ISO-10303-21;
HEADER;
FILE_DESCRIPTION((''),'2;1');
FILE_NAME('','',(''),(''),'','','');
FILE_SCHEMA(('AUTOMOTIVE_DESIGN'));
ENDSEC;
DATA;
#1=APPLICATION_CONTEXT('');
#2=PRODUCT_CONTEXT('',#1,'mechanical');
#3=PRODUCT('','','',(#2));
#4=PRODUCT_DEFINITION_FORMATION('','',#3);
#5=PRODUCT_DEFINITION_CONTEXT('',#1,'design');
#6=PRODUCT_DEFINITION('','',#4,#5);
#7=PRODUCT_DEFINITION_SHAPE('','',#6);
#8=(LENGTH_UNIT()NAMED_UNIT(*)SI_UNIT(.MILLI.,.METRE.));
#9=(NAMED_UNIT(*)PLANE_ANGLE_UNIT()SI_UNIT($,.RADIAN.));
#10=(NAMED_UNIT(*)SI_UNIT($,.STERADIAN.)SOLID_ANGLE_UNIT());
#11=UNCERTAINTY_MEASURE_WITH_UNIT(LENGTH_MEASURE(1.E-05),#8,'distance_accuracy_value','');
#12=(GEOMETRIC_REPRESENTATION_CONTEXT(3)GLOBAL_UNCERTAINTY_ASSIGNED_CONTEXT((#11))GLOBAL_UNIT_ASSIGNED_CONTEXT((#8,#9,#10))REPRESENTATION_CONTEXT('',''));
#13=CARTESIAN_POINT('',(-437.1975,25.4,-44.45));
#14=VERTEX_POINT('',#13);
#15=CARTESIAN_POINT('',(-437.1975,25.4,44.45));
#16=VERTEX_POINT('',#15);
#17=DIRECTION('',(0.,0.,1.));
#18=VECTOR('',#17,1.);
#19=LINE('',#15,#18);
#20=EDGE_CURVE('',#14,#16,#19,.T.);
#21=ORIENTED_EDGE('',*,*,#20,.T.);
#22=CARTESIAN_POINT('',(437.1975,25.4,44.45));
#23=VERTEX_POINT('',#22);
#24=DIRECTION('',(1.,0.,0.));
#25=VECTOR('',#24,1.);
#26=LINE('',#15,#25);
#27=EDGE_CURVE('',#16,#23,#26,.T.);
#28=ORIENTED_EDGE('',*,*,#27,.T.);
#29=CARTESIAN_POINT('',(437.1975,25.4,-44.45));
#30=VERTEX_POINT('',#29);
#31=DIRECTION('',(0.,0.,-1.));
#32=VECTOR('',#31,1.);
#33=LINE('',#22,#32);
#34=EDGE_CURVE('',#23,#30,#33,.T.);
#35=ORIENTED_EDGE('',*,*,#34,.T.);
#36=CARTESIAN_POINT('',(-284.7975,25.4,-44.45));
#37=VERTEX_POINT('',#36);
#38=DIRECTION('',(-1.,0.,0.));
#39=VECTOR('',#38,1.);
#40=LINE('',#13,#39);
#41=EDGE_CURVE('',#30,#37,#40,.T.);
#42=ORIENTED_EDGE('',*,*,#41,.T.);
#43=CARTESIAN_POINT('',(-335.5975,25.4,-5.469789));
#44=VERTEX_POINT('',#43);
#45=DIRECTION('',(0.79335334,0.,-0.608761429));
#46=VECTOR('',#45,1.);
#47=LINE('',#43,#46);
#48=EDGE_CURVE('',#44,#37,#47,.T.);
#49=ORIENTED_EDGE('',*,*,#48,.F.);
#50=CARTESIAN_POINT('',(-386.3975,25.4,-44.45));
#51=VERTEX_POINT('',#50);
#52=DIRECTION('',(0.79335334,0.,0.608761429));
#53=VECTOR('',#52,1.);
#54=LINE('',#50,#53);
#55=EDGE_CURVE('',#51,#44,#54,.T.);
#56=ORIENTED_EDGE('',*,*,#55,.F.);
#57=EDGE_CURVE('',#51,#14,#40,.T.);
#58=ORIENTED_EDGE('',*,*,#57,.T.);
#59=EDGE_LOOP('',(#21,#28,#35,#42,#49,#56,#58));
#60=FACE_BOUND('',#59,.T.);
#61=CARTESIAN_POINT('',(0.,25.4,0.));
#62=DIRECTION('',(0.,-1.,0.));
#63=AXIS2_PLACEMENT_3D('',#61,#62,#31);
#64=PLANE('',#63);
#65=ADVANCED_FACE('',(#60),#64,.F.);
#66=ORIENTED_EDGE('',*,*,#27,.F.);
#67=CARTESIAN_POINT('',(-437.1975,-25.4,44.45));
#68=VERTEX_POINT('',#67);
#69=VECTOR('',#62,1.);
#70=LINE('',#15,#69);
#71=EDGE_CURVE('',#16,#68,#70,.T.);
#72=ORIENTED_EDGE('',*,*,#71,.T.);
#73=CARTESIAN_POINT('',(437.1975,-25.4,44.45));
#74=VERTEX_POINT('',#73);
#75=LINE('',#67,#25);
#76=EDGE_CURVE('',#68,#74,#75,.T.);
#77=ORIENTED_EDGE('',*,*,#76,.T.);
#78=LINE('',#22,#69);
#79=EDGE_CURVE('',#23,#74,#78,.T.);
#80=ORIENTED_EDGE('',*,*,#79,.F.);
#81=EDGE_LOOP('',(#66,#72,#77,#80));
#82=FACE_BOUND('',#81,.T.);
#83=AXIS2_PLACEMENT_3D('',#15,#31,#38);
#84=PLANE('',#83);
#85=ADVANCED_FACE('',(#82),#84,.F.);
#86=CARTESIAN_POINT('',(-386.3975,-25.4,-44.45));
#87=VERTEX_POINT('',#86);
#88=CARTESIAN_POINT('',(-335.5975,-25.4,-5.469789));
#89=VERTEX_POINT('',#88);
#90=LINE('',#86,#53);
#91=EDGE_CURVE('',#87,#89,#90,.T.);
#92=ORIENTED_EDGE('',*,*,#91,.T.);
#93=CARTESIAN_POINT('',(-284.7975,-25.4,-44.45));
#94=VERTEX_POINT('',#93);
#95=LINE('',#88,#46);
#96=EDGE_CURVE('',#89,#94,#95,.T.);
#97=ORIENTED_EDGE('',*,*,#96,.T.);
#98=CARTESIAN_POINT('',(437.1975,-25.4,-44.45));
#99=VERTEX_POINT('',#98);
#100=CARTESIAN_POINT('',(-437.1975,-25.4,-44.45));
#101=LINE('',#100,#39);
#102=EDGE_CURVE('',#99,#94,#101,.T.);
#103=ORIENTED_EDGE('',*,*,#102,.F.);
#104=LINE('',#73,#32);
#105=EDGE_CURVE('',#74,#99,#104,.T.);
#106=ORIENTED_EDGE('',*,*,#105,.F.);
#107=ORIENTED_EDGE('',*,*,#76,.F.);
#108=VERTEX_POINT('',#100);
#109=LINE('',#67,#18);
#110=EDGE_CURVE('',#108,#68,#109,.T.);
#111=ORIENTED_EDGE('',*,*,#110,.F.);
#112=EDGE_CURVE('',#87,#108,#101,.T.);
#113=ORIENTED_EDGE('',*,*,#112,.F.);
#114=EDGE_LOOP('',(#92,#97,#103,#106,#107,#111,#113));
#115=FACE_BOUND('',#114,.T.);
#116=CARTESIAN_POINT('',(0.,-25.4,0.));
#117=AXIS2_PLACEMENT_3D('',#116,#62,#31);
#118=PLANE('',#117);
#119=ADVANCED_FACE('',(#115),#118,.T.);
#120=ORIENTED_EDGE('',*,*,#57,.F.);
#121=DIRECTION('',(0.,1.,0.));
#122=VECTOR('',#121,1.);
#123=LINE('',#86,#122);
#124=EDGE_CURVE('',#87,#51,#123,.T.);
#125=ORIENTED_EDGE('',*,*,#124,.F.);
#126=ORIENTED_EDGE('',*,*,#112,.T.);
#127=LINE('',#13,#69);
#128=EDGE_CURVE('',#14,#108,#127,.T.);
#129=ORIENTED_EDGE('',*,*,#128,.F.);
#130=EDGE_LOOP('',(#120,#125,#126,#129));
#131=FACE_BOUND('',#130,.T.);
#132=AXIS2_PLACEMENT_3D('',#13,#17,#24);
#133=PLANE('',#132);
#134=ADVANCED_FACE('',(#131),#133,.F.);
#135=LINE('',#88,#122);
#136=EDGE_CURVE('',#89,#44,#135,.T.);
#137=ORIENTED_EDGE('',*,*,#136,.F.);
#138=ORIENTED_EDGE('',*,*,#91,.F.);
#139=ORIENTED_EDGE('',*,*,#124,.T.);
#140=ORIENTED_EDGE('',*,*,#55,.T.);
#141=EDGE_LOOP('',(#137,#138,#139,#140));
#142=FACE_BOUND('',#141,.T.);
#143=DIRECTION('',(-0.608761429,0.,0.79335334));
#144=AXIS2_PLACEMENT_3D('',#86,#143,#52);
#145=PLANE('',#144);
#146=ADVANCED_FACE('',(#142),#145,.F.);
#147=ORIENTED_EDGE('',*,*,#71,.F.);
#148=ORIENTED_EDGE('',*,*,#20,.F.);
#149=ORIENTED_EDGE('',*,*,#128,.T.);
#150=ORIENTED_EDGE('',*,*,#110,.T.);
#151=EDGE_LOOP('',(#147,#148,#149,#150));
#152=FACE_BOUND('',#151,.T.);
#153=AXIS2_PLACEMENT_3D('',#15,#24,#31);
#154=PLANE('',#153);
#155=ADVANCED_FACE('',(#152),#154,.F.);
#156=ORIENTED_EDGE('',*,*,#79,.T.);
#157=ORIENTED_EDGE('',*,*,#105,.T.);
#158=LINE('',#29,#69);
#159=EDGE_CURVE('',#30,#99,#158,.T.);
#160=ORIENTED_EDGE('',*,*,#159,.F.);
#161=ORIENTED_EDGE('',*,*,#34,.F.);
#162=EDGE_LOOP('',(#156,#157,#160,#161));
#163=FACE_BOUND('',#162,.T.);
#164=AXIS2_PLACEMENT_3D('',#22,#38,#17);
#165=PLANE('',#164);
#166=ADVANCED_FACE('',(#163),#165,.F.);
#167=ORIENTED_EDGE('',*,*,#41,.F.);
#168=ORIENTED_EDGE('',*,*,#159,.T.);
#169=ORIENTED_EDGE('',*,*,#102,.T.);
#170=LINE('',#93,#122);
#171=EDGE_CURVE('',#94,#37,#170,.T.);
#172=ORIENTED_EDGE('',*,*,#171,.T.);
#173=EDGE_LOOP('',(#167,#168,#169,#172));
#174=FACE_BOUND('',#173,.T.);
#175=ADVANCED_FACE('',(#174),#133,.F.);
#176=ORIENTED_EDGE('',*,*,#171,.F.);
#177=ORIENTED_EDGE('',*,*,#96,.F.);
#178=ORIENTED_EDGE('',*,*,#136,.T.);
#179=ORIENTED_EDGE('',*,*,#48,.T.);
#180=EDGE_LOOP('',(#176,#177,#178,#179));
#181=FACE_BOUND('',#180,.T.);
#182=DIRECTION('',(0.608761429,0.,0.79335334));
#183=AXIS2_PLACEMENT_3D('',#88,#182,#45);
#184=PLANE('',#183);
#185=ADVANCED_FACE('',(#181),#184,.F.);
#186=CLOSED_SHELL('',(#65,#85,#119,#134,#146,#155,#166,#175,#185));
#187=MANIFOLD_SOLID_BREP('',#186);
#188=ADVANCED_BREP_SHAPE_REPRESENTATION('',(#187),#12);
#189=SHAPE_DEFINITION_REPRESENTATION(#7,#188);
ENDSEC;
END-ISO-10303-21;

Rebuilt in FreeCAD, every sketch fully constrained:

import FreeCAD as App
import Part
import Sketcher
Q = App.Units.Quantity

doc = App.newDocument("Part")
params = doc.addObject("Spreadsheet::Sheet", "Params")
for row, (alias, value) in enumerate([
    ("sketch1_height", "3.5 in"),
    ("sketch1_width", "34.425 in"),
    ("pad1_length", "2 in"),
    ("sketch2_width", "4 in"),
], start=1):
    params.set(f"A{row}", alias)
    params.set(f"B{row}", "=" + value)
    params.setAlias(f"B{row}", alias)

body = doc.addObject("PartDesign::Body", "Body")

# Sketch on XZ plane
sketch1 = body.newObject("Sketcher::SketchObject", "Sketch")
sketch1.AttachmentSupport = (doc.getObject("XZ_Plane"), [""])
sketch1.MapMode = "FlatFace"
sketch1.addGeometry([
    Part.LineSegment(App.Vector(-437, -44, 0), App.Vector(-437, 44, 0)),
    Part.LineSegment(App.Vector(-437, 44, 0), App.Vector(437, 44, 0)),
    Part.LineSegment(App.Vector(437, 44, 0), App.Vector(437, -44, 0)),
    Part.LineSegment(App.Vector(437, -44, 0), App.Vector(-437, -44, 0)),
], False)
sketch1.addConstraint([
    Sketcher.Constraint("Coincident", 0, 2, 1, 1),
    Sketcher.Constraint("Coincident", 1, 2, 2, 1),
    Sketcher.Constraint("Coincident", 2, 2, 3, 1),
    Sketcher.Constraint("Coincident", 3, 2, 0, 1),
    Sketcher.Constraint("Vertical", 0),
    Sketcher.Constraint("Horizontal", 1),
    Sketcher.Constraint("Vertical", 2),
    Sketcher.Constraint("Horizontal", 3),
    Sketcher.Constraint("Symmetric", 0, 2, 2, 2, -1, 1),
    Sketcher.Constraint("DistanceY", 0, 1, 0, 2, Q("3.5 in")),
    Sketcher.Constraint("DistanceX", 1, 1, 1, 2, Q("34.425 in")),
])
sketch1.setExpression("Constraints[9]", "Params.sketch1_height")
sketch1.setExpression("Constraints[10]", "Params.sketch1_width")
pad1 = body.newObject("PartDesign::Pad", "Pad")
pad1.Profile = sketch1
pad1.setExpression("Length", "Params.pad1_length")
pad1.Midplane = True

# Sketch on XZ plane
sketch2 = body.newObject("Sketcher::SketchObject", "Sketch001")
sketch2.AttachmentSupport = (doc.getObject("XZ_Plane"), [""])
sketch2.MapMode = "FlatFace"
sketch2.AttachmentOffset = App.Placement(App.Vector(0, 0, -1 * 25.4), App.Rotation())
sketch2.addGeometry([
    Part.LineSegment(App.Vector(-386, -44, 0), App.Vector(-336, -5, 0)),
    Part.LineSegment(App.Vector(-336, -5, 0), App.Vector(-285, -44, 0)),
    Part.LineSegment(App.Vector(-285, -44, 0), App.Vector(-386, -44, 0)),
], False)
sketch2.addConstraint([
    Sketcher.Constraint("Coincident", 0, 2, 1, 1),
    Sketcher.Constraint("Coincident", 1, 2, 2, 1),
    Sketcher.Constraint("Coincident", 2, 2, 0, 1),
    Sketcher.Constraint("Horizontal", 2),
    Sketcher.Constraint("Equal", 0, 1),
    Sketcher.Constraint("DistanceX", 2, 2, 2, 1, Q("4 in")),
    Sketcher.Constraint("Angle", 0, Q("37.5 deg")),
    Sketcher.Constraint("DistanceY", 1, 2, -1, 1, Q("1.75 in")),
    Sketcher.Constraint("DistanceX", 0, 2, -1, 1, Q("13.2125 in")),
])
sketch2.setExpression("Constraints[5]", "Params.sketch2_width")
pocket1 = body.newObject("PartDesign::Pocket", "Pocket")
pocket1.Profile = sketch2
pocket1.Type = "ThroughAll"
pocket1.Reversed = True

doc.recompute()
